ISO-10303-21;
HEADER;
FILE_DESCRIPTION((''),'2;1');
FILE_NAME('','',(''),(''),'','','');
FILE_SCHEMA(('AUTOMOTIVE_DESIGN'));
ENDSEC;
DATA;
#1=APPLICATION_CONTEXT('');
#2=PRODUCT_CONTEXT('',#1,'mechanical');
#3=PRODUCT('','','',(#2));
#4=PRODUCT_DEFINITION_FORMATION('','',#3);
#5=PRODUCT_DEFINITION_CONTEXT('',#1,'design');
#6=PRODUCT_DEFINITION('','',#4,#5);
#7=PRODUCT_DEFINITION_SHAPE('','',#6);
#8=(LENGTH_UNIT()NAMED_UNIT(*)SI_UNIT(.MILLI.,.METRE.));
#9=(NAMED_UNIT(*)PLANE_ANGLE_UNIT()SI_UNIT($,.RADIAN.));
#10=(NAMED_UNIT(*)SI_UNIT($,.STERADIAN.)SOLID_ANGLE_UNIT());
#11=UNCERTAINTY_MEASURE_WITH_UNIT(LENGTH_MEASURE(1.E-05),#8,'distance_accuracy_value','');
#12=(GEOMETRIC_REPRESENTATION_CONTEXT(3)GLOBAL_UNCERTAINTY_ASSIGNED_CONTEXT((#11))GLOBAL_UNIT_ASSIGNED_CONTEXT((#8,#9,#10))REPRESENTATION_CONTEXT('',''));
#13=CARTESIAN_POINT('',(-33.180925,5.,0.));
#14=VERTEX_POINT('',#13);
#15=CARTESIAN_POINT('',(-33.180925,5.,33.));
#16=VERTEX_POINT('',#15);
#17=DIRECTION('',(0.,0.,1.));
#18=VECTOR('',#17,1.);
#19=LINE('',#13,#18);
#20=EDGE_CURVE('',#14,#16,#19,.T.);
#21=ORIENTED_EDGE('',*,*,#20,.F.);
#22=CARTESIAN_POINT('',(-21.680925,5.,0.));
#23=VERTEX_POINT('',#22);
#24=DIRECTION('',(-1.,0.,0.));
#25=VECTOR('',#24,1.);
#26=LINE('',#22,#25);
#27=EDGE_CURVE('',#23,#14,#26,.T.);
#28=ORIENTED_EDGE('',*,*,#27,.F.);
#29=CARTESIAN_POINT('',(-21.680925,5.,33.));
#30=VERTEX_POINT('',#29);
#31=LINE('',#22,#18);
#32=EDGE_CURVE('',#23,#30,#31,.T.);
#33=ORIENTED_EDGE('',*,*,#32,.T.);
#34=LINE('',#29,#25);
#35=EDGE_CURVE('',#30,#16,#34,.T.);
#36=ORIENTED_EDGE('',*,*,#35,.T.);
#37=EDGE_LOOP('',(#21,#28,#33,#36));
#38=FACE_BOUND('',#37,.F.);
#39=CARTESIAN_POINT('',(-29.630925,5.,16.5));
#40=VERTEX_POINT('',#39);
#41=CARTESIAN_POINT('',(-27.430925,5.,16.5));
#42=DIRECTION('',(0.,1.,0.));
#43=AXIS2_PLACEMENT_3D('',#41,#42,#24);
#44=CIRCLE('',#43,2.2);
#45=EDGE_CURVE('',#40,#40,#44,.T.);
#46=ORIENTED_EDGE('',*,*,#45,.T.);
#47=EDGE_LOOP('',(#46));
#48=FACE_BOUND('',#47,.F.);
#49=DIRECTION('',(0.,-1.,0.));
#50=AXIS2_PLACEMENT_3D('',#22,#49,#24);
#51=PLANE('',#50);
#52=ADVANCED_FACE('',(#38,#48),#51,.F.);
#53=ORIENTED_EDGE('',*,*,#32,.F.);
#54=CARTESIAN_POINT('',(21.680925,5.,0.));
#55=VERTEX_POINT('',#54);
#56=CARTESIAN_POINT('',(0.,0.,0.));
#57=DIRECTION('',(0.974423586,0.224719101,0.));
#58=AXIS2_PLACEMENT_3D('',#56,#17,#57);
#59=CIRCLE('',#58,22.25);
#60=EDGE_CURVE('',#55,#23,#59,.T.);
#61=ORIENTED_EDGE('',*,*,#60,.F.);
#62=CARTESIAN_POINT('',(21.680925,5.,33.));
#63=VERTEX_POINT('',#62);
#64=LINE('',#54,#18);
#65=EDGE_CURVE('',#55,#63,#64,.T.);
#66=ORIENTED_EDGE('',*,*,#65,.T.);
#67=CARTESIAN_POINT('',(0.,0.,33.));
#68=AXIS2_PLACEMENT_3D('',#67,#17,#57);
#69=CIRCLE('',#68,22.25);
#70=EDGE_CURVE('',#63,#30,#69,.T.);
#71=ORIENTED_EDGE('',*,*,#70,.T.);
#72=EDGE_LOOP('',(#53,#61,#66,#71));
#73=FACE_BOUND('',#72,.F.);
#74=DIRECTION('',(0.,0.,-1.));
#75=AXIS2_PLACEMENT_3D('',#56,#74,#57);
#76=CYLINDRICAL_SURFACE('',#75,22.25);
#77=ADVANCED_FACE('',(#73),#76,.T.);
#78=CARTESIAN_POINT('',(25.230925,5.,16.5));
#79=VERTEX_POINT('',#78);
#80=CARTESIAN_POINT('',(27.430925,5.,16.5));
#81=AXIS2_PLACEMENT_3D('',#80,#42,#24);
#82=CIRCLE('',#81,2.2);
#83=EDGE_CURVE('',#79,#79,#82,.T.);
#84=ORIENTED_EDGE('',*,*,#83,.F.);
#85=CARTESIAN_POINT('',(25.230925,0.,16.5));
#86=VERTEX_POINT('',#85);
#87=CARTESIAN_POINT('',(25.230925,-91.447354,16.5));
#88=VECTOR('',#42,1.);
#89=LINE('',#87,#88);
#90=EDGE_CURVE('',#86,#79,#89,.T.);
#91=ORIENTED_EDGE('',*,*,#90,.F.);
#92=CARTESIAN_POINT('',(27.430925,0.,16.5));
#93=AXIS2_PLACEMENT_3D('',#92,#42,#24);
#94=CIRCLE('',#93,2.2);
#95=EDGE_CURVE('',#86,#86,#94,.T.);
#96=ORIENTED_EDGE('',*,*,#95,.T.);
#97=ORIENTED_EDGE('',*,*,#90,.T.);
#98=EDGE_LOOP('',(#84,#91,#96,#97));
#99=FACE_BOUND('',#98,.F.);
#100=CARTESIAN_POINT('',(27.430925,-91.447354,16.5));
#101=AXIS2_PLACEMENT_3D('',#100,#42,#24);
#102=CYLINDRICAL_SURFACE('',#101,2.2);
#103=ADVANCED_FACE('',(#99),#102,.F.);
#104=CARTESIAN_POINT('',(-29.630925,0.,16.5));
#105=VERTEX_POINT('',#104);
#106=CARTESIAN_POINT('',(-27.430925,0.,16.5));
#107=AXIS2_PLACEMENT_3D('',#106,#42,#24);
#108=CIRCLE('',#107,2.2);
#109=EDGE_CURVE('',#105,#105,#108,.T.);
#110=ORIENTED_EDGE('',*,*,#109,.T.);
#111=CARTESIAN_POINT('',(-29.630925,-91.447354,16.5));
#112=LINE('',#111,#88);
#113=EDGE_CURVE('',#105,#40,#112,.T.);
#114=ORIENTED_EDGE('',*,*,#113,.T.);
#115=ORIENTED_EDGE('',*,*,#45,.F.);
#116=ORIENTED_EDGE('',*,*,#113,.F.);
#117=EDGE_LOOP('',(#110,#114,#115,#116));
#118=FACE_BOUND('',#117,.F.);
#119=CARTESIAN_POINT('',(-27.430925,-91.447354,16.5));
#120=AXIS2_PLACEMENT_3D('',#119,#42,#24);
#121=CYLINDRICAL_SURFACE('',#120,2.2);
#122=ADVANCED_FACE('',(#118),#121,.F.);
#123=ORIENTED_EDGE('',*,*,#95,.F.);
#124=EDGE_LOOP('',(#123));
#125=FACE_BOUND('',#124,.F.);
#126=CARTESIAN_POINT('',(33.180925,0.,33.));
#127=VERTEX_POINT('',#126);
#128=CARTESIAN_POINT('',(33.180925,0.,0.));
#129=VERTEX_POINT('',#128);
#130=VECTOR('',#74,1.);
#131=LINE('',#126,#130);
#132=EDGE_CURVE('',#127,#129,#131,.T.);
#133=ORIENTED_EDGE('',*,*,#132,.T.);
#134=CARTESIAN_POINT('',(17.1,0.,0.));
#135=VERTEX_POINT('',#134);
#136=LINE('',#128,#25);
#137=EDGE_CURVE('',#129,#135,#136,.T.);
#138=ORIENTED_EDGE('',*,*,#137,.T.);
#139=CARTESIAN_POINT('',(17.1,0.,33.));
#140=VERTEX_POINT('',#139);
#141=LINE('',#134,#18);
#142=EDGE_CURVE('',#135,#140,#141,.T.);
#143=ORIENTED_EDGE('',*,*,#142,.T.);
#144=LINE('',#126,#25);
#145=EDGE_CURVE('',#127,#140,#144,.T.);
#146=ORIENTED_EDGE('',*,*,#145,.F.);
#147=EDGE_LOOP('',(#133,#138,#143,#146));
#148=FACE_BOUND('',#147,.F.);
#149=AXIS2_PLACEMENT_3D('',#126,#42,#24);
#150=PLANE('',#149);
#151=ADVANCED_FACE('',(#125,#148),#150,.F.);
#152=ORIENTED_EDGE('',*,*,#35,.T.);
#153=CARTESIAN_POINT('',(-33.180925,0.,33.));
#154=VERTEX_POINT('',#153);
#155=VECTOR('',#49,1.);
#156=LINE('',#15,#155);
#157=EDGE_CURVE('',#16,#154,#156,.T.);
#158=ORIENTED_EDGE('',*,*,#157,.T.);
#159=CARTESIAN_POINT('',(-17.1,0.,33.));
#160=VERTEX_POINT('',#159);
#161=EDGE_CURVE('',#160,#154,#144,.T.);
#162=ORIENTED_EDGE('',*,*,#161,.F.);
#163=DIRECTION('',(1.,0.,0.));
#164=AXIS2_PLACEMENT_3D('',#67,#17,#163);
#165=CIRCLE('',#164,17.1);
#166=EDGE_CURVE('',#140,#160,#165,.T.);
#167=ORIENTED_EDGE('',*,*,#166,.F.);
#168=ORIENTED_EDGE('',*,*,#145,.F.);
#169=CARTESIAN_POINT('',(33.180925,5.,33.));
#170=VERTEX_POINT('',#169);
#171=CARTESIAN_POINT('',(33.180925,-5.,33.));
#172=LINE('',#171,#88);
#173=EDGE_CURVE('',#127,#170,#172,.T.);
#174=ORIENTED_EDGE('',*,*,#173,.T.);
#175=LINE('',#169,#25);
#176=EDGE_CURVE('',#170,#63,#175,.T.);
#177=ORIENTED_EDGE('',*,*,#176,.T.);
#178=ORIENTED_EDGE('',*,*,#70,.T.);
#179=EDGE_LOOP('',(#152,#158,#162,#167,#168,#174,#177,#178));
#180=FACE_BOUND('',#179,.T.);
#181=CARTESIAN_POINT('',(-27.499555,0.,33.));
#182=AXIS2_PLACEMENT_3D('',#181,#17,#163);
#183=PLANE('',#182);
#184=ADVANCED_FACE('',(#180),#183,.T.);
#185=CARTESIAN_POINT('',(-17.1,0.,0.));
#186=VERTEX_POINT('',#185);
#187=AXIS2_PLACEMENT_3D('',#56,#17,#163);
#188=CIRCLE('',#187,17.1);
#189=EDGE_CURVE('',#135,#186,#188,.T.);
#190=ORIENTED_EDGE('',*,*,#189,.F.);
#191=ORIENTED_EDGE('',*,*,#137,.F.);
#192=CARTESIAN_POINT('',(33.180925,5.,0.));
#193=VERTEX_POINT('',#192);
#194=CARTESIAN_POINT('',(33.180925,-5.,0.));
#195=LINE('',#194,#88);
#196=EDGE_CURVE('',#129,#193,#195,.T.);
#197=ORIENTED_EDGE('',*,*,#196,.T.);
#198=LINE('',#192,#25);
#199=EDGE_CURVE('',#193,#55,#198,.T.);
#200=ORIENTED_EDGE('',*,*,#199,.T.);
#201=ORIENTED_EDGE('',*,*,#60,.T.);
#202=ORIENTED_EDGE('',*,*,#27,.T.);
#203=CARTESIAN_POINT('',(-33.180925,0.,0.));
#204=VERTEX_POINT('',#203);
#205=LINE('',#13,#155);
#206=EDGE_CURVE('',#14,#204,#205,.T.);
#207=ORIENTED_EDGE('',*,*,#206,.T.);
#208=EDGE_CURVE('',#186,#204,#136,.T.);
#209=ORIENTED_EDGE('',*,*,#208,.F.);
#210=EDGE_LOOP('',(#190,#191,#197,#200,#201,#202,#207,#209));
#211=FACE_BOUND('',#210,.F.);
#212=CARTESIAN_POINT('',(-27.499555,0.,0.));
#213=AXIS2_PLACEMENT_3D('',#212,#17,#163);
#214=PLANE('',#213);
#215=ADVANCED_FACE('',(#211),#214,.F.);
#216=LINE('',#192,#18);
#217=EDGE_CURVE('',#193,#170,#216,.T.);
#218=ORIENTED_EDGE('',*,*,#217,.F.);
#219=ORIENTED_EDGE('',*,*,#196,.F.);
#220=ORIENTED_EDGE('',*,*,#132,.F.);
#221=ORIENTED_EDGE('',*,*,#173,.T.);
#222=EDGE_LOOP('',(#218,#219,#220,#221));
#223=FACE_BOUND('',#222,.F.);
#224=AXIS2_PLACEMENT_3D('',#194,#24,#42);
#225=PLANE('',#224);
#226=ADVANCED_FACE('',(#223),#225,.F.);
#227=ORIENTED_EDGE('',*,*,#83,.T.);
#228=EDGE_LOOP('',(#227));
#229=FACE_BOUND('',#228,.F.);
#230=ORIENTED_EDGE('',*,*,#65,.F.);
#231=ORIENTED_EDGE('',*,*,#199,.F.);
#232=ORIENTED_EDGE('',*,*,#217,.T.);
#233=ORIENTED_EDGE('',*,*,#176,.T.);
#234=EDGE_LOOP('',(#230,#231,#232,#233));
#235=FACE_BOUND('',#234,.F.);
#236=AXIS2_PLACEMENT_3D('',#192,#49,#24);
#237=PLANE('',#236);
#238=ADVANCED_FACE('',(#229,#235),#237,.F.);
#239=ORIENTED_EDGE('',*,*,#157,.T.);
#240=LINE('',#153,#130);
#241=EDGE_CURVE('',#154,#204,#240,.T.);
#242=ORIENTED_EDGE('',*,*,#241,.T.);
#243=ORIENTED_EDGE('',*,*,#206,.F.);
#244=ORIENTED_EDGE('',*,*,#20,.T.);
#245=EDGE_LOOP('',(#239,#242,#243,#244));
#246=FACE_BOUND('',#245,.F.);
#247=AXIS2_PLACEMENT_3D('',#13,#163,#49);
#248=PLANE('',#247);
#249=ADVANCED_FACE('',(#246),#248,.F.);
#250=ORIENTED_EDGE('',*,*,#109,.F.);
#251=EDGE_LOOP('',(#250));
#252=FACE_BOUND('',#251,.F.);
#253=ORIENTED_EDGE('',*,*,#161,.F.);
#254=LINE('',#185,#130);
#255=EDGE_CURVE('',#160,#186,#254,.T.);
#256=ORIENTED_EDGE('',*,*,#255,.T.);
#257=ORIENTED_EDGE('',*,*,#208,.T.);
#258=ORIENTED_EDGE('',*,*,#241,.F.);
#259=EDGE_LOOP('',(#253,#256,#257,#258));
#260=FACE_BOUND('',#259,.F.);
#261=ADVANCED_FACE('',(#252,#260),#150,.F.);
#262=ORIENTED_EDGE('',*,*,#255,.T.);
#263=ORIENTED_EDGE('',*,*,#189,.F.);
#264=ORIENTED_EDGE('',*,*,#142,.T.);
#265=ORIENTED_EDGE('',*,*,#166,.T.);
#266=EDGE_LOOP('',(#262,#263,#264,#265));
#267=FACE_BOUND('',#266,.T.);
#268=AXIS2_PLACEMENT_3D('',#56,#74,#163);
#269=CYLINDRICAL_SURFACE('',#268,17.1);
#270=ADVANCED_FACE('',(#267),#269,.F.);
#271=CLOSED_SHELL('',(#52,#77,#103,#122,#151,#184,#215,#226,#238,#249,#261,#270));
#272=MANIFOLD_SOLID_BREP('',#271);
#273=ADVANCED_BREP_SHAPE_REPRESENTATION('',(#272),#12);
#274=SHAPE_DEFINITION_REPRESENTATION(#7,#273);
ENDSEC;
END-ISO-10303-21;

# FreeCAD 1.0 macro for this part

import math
import FreeCAD as App
import Part
import Sketcher
from FreeCAD import Vector

doc = App.newDocument("Part")
body = doc.addObject("PartDesign::Body", "Body")

# Sketch on XY plane
sketch1 = body.newObject("Sketcher::SketchObject", "Sketch")
sketch1.AttachmentSupport = (doc.getObject("XY_Plane"), [""])
sketch1.MapMode = "FlatFace"
sketch1.addGeometry([
    Part.LineSegment(Vector(-22, 5, 0), Vector(-33, 5, 0)),  # 0
    Part.LineSegment(Vector(-33, 5, 0), Vector(-33, -5, 0)),  # 1
    Part.LineSegment(Vector(-33, -5, 0), Vector(-22, -5, 0)),  # 2
    Part.ArcOfCircle(Part.Circle(Vector(0, 0, 0), Vector(0, 0, 1), 22), math.radians(-167), math.radians(-13)),  # 3
    Part.LineSegment(Vector(22, -5, 0), Vector(33, -5, 0)),  # 4
    Part.LineSegment(Vector(33, -5, 0), Vector(33, 5, 0)),  # 5
    Part.LineSegment(Vector(33, 5, 0), Vector(22, 5, 0)),  # 6
    Part.ArcOfCircle(Part.Circle(Vector(0, 0, 0), Vector(0, 0, 1), 22), math.radians(13), math.radians(167)),  # 7
    Part.Circle(Vector(0, 0, 0), Vector(0, 0, 1), 17),  # 8
], False)
sketch1.addConstraint([
    Sketcher.Constraint("Coincident", 0, 2, 1, 1),
    Sketcher.Constraint("Coincident", 1, 2, 2, 1),
    Sketcher.Constraint("Coincident", 2, 2, 3, 1),
    Sketcher.Constraint("Coincident", 3, 2, 4, 1),
    Sketcher.Constraint("Coincident", 4, 2, 5, 1),
    Sketcher.Constraint("Coincident", 5, 2, 6, 1),
    Sketcher.Constraint("Coincident", 6, 2, 7, 1),
    Sketcher.Constraint("Coincident", 7, 2, 0, 1),
    Sketcher.Constraint("Horizontal", 0),
    Sketcher.Constraint("Vertical", 1),
    Sketcher.Constraint("Horizontal", 2),
    Sketcher.Constraint("Horizontal", 4),
    Sketcher.Constraint("Vertical", 5),
    Sketcher.Constraint("Horizontal", 6),
    Sketcher.Constraint("Coincident", 3, 3, -1, 1),
    Sketcher.Constraint("Coincident", 7, 3, -1, 1),
    Sketcher.Constraint("Coincident", 8, 3, -1, 1),
    Sketcher.Constraint("Equal", 3, 7),
    Sketcher.Constraint("Symmetric", 0, 2, 4, 2, -1, 1),
    Sketcher.Constraint("Horizontal", 2, 2, 3, 2),
    Sketcher.Constraint("Horizontal", 0, 2, 5, 2),
    Sketcher.Constraint("Diameter", 8, 34.2),
    Sketcher.Constraint("DistanceY", 1, 2, 1, 1, 10.0),
    Sketcher.Constraint("Radius", 3, 22.25),
    Sketcher.Constraint("DistanceX", 0, 2, 0, 1, 11.5),
])
pad1 = body.newObject("PartDesign::Pad", "Pad")
pad1.Profile = sketch1
pad1.Length = 33

# Sketch on XZ plane
sketch2 = body.newObject("Sketcher::SketchObject", "Sketch001")
sketch2.AttachmentSupport = (doc.getObject("XZ_Plane"), [""])
sketch2.MapMode = "FlatFace"
sketch2.AttachmentOffset = App.Placement(Vector(0, 0, 5), App.Rotation())
sketch2.addGeometry(Part.Circle(Vector(-27.4, 16.5, 0), Vector(0, 0, 1), 2.2), False)
sketch2.addConstraint([
    Sketcher.Constraint("Diameter", 0, 4.4),
    Sketcher.Constraint("DistanceY", -1, 1, 0, 3, 16.5),
    Sketcher.Constraint("DistanceX", 0, 3, -1, 1, 27.430925),
])
doc.recompute()
hole = body.newObject("PartDesign::Hole", "Hole")
hole.Profile = sketch2
hole.ThreadType = "None"
hole.Diameter = 4.4
hole.DepthType = "ThroughAll"

# Sketch on XZ plane
sketch3 = body.newObject("Sketcher::SketchObject", "Sketch002")
sketch3.AttachmentSupport = (doc.getObject("XZ_Plane"), [""])
sketch3.MapMode = "FlatFace"
sketch3.AttachmentOffset = App.Placement(Vector(0, 0, 5), App.Rotation())
sketch3.addGeometry(Part.Circle(Vector(27.4, 16.5, 0), Vector(0, 0, 1), 2.2), False)
sketch3.addConstraint([
    Sketcher.Constraint("Diameter", 0, 4.4),
    Sketcher.Constraint("DistanceY", -1, 1, 0, 3, 16.5),
    Sketcher.Constraint("DistanceX", -1, 1, 0, 3, 27.430925),
])
doc.recompute()
hole2 = body.newObject("PartDesign::Hole", "Hole001")
hole2.Profile = sketch3
hole2.ThreadType = "None"
hole2.Diameter = 4.4
hole2.DepthType = "ThroughAll"

# Sketch on XY plane
sketch4 = body.newObject("Sketcher::SketchObject", "Sketch003")
sketch4.AttachmentSupport = (doc.getObject("XY_Plane"), [""])
sketch4.MapMode = "FlatFace"
sketch4.AttachmentOffset = App.Placement(Vector(0, 0, 33), App.Rotation())
sketch4.addGeometry([
    Part.LineSegment(Vector(33, 0, 0), Vector(-33, 0, 0)),
    Part.LineSegment(Vector(-33, 0, 0), Vector(-33, -23, 0)),
    Part.LineSegment(Vector(-33, -23, 0), Vector(33, -23, 0)),
    Part.LineSegment(Vector(33, -23, 0), Vector(33, 0, 0)),
], False)
sketch4.addConstraint([
    Sketcher.Constraint("Coincident", 0, 2, 1, 1),
    Sketcher.Constraint("Coincident", 1, 2, 2, 1),
    Sketcher.Constraint("Coincident", 2, 2, 3, 1),
    Sketcher.Constraint("Coincident", 3, 2, 0, 1),
    Sketcher.Constraint("Horizontal", 0),
    Sketcher.Constraint("Vertical", 1),
    Sketcher.Constraint("Horizontal", 2),
    Sketcher.Constraint("Vertical", 3),
    Sketcher.Constraint("Symmetric", 0, 2, 3, 2, -1, 1),
    Sketcher.Constraint("DistanceX", 0, 2, 0, 1, 66.36185),
    Sketcher.Constraint("DistanceY", 1, 2, 1, 1, 22.675673),
])
pocket1 = body.newObject("PartDesign::Pocket", "Pocket")
pocket1.Profile = sketch4
pocket1.Length = 33

doc.recompute()
